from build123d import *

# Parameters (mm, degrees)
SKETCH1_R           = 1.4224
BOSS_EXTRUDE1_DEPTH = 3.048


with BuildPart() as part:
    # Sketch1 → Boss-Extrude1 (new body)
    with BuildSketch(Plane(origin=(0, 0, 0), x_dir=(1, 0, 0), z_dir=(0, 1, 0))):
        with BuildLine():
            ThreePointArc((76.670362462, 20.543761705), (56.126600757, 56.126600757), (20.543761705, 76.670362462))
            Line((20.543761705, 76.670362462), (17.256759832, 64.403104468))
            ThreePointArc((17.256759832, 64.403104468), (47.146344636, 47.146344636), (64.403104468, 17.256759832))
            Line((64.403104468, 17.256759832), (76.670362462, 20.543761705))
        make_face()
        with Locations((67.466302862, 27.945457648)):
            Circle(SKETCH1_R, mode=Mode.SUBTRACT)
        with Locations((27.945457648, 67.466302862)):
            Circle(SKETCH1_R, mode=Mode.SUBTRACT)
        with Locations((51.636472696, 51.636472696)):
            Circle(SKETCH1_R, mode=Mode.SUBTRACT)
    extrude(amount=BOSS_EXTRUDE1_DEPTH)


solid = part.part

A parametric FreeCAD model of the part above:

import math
import FreeCAD as App
import Part
import Sketcher

V = App.Vector
Q = App.Units.Quantity

doc = App.newDocument("Part")
body = doc.addObject("PartDesign::Body", "Body")

sketch1 = doc.addObject("Sketcher::SketchObject", "Sketch")
body.addObject(sketch1)
sketch1.AttachmentSupport = (doc.XZ_Plane, [""])
sketch1.MapMode = "FlatFace"
sketch1.addGeometry([
    Part.ArcOfCircle(Part.Circle(V(0, 0, 0), V(0, 0, 1), 79.4), math.radians(-75), math.radians(-15)),
    Part.LineSegment(V(20.5, -76.7, 0), V(17.3, -64.4, 0)),
    Part.ArcOfCircle(Part.Circle(V(0, 0, 0), V(0, 0, 1), 66.7), math.radians(-75), math.radians(-15)),
    Part.LineSegment(V(64.4, -17.3, 0), V(76.7, -20.5, 0)),
    Part.Circle(V(67.5, -27.9, 0), V(0, 0, 1), 1.4),
    Part.Circle(V(27.9, -67.5, 0), V(0, 0, 1), 1.4),
    Part.Circle(V(51.6, -51.6, 0), V(0, 0, 1), 1.4),
], False)
sketch1.addConstraint([
    Sketcher.Constraint("Coincident", 0, 1, 1, 1),
    Sketcher.Constraint("Coincident", 1, 2, 2, 1),
    Sketcher.Constraint("Coincident", 2, 2, 3, 1),
    Sketcher.Constraint("Coincident", 3, 2, 0, 2),
    Sketcher.Constraint("Coincident", 0, 3, -1, 1),
    Sketcher.Constraint("Coincident", 2, 3, -1, 1),
    Sketcher.Constraint("Equal", 4, 5),
    Sketcher.Constraint("Equal", 5, 6),
    Sketcher.Constraint("Diameter", 4, Q("0.112 in")),
    Sketcher.Constraint("Angle", 1, Q("105 deg")),
    Sketcher.Constraint("Angle", 3, Q("-15 deg")),
    Sketcher.Constraint("Radius", 0, Q("3.125 in")),
    Sketcher.Constraint("Radius", 2, Q("2.625 in")),
    Sketcher.Constraint("DistanceX", -1, 1, 1, 2, Q("0.6794 in")),
    Sketcher.Constraint("DistanceY", 2, 2, -1, 1, Q("0.6794 in")),
    Sketcher.Constraint("DistanceY", 5, 3, 1, 2, 3.063198),
    Sketcher.Constraint("DistanceX", 2, 2, 4, 3, 3.063198),
    Sketcher.Constraint("DistanceX", 6, 3, 4, 3, 15.82983),
    Sketcher.Constraint("DistanceY", 5, 3, 6, 3, 15.82983),
    Sketcher.Constraint("DistanceY", 4, 3, -1, 1, 27.945458),
    Sketcher.Constraint("DistanceX", -1, 1, 5, 3, 27.945458),
])
pad1 = doc.addObject("PartDesign::Pad", "Pad")
body.addObject(pad1)
pad1.Profile = sketch1
pad1.Length = Q("0.12 in")
pad1.Reversed = True

doc.recompute()
